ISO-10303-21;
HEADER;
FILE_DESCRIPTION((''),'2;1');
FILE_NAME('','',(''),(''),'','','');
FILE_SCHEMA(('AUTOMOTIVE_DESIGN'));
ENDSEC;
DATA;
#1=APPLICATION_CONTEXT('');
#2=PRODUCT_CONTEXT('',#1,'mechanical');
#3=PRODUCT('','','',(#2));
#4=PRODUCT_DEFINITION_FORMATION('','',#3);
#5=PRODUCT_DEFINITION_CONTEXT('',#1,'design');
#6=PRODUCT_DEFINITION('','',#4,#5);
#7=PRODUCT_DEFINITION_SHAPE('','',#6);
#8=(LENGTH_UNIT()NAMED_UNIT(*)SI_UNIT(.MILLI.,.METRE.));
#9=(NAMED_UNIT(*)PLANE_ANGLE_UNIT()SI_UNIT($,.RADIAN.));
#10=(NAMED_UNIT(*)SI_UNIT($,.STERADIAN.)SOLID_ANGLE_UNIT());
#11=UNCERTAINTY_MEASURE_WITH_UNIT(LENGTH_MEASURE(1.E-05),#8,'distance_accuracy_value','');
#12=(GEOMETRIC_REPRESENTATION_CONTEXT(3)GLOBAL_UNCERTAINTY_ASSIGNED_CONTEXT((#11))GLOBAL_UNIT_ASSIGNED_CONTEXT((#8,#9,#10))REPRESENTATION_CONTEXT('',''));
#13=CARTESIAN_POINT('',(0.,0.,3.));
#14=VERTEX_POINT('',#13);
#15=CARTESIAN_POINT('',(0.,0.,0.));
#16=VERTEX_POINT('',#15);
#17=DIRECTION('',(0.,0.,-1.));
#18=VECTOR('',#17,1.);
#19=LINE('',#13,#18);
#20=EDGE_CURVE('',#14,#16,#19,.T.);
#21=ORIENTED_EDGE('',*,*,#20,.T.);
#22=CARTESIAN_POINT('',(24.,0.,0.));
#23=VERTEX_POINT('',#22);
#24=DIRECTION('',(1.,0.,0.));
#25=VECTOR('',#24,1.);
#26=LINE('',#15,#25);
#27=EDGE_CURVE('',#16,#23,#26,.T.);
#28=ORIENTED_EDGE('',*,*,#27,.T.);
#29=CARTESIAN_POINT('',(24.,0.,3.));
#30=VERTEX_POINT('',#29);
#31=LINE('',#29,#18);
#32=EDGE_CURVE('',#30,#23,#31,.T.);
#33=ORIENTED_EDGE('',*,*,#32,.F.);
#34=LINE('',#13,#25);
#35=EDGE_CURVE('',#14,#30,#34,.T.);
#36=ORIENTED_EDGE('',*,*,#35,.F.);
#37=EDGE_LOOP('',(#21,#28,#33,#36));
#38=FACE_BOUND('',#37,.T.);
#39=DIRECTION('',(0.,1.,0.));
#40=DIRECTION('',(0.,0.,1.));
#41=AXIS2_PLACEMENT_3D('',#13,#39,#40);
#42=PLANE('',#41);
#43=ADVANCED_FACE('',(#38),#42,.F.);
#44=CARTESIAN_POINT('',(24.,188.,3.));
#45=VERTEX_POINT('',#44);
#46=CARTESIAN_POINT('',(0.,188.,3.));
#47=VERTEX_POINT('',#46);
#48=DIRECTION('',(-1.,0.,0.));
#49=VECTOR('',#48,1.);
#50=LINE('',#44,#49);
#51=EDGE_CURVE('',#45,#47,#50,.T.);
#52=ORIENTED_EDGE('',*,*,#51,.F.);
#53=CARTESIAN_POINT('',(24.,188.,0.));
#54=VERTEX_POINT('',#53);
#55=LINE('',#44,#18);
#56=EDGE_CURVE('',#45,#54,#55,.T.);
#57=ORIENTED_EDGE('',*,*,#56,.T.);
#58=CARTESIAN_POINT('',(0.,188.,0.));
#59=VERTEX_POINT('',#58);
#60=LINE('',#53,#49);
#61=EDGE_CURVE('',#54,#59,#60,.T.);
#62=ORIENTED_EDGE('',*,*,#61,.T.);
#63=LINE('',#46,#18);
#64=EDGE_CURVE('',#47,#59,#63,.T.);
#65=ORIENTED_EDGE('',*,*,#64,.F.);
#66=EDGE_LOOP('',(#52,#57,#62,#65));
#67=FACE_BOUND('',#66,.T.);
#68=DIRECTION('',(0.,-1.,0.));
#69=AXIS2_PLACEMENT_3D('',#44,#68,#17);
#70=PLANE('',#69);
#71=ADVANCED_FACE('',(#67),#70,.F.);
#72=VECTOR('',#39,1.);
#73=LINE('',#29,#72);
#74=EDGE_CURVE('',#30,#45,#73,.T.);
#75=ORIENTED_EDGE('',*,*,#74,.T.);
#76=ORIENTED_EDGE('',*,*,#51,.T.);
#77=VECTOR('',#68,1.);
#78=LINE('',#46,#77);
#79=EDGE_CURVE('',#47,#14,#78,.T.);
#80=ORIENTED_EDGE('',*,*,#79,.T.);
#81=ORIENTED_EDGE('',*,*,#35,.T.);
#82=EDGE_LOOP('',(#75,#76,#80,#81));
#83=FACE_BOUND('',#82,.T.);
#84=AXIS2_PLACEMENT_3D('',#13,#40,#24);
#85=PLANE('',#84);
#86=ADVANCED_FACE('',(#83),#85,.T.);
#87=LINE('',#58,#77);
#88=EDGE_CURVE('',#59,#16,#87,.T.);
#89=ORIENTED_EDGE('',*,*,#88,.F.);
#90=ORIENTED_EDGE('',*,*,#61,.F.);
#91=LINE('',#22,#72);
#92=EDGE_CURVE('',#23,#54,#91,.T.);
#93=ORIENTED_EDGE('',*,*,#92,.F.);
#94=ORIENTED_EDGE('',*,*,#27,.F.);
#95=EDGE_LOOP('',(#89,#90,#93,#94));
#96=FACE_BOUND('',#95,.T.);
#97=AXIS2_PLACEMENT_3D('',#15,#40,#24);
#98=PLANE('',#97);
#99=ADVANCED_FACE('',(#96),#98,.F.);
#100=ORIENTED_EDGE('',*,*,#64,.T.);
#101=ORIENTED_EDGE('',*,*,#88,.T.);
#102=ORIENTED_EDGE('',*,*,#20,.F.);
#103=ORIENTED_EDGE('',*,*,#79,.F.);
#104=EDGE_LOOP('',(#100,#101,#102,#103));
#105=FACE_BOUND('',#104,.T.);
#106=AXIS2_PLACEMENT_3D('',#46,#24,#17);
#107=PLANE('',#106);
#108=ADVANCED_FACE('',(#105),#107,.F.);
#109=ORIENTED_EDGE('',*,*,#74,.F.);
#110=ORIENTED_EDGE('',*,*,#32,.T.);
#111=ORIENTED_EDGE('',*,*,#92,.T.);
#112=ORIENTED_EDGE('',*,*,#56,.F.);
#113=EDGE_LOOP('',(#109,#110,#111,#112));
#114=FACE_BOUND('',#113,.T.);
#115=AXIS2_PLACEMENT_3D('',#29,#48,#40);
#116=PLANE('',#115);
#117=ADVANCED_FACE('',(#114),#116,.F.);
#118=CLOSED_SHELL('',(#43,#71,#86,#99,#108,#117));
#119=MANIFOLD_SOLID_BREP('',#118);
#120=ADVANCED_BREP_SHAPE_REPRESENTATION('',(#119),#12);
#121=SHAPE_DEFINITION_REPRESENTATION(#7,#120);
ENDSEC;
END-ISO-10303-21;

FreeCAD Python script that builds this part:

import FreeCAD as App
import Part
import Sketcher

doc = App.newDocument("Part")
body = doc.addObject("PartDesign::Body", "Body")

# Sketch on XY plane
sketch1 = doc.addObject("Sketcher::SketchObject", "Sketch")
body.addObject(sketch1)
sketch1.AttachmentSupport = (doc.XY_Plane, [""])
sketch1.MapMode = "FlatFace"
sketch1.addGeometry([
    Part.LineSegment(App.Vector(0, 188, 0), App.Vector(0, 0, 0)),
    Part.LineSegment(App.Vector(0, 0, 0), App.Vector(24, 0, 0)),
    Part.LineSegment(App.Vector(24, 0, 0), App.Vector(24, 188, 0)),
    Part.LineSegment(App.Vector(24, 188, 0), App.Vector(0, 188, 0)),
], False)
sketch1.addConstraint([
    Sketcher.Constraint("Coincident", 0, 2, 1, 1),
    Sketcher.Constraint("Coincident", 1, 2, 2, 1),
    Sketcher.Constraint("Coincident", 2, 2, 3, 1),
    Sketcher.Constraint("Coincident", 3, 2, 0, 1),
    Sketcher.Constraint("Vertical", 0),
    Sketcher.Constraint("Horizontal", 1),
    Sketcher.Constraint("Vertical", 2),
    Sketcher.Constraint("Horizontal", 3),
    Sketcher.Constraint("Coincident", 0, 2, -1, 1),
    Sketcher.Constraint("DistanceX", 1, 1, 1, 2, 24.0),
    Sketcher.Constraint("DistanceY", 0, 2, 0, 1, 188.0),
])
pad1 = doc.addObject("PartDesign::Pad", "Pad")
body.addObject(pad1)
pad1.Profile = sketch1
pad1.Length = 3

doc.recompute()
